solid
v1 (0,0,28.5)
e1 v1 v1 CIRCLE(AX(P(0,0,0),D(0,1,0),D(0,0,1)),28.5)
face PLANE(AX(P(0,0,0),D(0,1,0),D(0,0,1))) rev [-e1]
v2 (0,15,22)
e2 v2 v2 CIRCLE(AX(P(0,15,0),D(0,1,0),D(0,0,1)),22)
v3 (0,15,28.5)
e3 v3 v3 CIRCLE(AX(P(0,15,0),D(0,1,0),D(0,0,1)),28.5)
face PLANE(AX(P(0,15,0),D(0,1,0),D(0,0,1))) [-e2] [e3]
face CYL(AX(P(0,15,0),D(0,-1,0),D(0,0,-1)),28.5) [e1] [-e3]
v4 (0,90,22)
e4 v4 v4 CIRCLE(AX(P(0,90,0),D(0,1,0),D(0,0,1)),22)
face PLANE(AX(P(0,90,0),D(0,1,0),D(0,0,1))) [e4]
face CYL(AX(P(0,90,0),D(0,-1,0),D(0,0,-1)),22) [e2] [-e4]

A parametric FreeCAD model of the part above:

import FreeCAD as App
import Part
import Sketcher
Q = App.Units.Quantity

doc = App.newDocument("Part")
body = doc.addObject("PartDesign::Body", "Body")

# Sketch on XZ plane
sketch1 = body.newObject("Sketcher::SketchObject", "Sketch")
sketch1.AttachmentSupport = (doc.getObject("XZ_Plane"), [""])
sketch1.MapMode = "FlatFace"
sketch1.addGeometry(Part.Circle(App.Vector(0, 0, 0), App.Vector(0, 0, 1), 28), False)
sketch1.addConstraint([
    Sketcher.Constraint("Coincident", 0, 3, -1, 1),
    Sketcher.Constraint("Diameter", 0, Q("57 mm")),
])
pad1 = body.newObject("PartDesign::Pad", "Pad")
pad1.Profile = sketch1
pad1.Length = 15
pad1.Reversed = True

# Sketch on XZ plane
sketch2 = body.newObject("Sketcher::SketchObject", "Sketch001")
sketch2.AttachmentSupport = (doc.getObject("XZ_Plane"), [""])
sketch2.MapMode = "FlatFace"
sketch2.AttachmentOffset = App.Placement(App.Vector(0, 0, -15), App.Rotation())
sketch2.addGeometry(Part.Circle(App.Vector(0, 0, 0), App.Vector(0, 0, 1), 22), False)
sketch2.addConstraint([
    Sketcher.Constraint("Coincident", 0, 3, -1, 1),
    Sketcher.Constraint("Diameter", 0, Q("44 mm")),
])
pad2 = body.newObject("PartDesign::Pad", "Pad001")
pad2.Profile = sketch2
pad2.Length = 75
pad2.Reversed = True

doc.recompute()
